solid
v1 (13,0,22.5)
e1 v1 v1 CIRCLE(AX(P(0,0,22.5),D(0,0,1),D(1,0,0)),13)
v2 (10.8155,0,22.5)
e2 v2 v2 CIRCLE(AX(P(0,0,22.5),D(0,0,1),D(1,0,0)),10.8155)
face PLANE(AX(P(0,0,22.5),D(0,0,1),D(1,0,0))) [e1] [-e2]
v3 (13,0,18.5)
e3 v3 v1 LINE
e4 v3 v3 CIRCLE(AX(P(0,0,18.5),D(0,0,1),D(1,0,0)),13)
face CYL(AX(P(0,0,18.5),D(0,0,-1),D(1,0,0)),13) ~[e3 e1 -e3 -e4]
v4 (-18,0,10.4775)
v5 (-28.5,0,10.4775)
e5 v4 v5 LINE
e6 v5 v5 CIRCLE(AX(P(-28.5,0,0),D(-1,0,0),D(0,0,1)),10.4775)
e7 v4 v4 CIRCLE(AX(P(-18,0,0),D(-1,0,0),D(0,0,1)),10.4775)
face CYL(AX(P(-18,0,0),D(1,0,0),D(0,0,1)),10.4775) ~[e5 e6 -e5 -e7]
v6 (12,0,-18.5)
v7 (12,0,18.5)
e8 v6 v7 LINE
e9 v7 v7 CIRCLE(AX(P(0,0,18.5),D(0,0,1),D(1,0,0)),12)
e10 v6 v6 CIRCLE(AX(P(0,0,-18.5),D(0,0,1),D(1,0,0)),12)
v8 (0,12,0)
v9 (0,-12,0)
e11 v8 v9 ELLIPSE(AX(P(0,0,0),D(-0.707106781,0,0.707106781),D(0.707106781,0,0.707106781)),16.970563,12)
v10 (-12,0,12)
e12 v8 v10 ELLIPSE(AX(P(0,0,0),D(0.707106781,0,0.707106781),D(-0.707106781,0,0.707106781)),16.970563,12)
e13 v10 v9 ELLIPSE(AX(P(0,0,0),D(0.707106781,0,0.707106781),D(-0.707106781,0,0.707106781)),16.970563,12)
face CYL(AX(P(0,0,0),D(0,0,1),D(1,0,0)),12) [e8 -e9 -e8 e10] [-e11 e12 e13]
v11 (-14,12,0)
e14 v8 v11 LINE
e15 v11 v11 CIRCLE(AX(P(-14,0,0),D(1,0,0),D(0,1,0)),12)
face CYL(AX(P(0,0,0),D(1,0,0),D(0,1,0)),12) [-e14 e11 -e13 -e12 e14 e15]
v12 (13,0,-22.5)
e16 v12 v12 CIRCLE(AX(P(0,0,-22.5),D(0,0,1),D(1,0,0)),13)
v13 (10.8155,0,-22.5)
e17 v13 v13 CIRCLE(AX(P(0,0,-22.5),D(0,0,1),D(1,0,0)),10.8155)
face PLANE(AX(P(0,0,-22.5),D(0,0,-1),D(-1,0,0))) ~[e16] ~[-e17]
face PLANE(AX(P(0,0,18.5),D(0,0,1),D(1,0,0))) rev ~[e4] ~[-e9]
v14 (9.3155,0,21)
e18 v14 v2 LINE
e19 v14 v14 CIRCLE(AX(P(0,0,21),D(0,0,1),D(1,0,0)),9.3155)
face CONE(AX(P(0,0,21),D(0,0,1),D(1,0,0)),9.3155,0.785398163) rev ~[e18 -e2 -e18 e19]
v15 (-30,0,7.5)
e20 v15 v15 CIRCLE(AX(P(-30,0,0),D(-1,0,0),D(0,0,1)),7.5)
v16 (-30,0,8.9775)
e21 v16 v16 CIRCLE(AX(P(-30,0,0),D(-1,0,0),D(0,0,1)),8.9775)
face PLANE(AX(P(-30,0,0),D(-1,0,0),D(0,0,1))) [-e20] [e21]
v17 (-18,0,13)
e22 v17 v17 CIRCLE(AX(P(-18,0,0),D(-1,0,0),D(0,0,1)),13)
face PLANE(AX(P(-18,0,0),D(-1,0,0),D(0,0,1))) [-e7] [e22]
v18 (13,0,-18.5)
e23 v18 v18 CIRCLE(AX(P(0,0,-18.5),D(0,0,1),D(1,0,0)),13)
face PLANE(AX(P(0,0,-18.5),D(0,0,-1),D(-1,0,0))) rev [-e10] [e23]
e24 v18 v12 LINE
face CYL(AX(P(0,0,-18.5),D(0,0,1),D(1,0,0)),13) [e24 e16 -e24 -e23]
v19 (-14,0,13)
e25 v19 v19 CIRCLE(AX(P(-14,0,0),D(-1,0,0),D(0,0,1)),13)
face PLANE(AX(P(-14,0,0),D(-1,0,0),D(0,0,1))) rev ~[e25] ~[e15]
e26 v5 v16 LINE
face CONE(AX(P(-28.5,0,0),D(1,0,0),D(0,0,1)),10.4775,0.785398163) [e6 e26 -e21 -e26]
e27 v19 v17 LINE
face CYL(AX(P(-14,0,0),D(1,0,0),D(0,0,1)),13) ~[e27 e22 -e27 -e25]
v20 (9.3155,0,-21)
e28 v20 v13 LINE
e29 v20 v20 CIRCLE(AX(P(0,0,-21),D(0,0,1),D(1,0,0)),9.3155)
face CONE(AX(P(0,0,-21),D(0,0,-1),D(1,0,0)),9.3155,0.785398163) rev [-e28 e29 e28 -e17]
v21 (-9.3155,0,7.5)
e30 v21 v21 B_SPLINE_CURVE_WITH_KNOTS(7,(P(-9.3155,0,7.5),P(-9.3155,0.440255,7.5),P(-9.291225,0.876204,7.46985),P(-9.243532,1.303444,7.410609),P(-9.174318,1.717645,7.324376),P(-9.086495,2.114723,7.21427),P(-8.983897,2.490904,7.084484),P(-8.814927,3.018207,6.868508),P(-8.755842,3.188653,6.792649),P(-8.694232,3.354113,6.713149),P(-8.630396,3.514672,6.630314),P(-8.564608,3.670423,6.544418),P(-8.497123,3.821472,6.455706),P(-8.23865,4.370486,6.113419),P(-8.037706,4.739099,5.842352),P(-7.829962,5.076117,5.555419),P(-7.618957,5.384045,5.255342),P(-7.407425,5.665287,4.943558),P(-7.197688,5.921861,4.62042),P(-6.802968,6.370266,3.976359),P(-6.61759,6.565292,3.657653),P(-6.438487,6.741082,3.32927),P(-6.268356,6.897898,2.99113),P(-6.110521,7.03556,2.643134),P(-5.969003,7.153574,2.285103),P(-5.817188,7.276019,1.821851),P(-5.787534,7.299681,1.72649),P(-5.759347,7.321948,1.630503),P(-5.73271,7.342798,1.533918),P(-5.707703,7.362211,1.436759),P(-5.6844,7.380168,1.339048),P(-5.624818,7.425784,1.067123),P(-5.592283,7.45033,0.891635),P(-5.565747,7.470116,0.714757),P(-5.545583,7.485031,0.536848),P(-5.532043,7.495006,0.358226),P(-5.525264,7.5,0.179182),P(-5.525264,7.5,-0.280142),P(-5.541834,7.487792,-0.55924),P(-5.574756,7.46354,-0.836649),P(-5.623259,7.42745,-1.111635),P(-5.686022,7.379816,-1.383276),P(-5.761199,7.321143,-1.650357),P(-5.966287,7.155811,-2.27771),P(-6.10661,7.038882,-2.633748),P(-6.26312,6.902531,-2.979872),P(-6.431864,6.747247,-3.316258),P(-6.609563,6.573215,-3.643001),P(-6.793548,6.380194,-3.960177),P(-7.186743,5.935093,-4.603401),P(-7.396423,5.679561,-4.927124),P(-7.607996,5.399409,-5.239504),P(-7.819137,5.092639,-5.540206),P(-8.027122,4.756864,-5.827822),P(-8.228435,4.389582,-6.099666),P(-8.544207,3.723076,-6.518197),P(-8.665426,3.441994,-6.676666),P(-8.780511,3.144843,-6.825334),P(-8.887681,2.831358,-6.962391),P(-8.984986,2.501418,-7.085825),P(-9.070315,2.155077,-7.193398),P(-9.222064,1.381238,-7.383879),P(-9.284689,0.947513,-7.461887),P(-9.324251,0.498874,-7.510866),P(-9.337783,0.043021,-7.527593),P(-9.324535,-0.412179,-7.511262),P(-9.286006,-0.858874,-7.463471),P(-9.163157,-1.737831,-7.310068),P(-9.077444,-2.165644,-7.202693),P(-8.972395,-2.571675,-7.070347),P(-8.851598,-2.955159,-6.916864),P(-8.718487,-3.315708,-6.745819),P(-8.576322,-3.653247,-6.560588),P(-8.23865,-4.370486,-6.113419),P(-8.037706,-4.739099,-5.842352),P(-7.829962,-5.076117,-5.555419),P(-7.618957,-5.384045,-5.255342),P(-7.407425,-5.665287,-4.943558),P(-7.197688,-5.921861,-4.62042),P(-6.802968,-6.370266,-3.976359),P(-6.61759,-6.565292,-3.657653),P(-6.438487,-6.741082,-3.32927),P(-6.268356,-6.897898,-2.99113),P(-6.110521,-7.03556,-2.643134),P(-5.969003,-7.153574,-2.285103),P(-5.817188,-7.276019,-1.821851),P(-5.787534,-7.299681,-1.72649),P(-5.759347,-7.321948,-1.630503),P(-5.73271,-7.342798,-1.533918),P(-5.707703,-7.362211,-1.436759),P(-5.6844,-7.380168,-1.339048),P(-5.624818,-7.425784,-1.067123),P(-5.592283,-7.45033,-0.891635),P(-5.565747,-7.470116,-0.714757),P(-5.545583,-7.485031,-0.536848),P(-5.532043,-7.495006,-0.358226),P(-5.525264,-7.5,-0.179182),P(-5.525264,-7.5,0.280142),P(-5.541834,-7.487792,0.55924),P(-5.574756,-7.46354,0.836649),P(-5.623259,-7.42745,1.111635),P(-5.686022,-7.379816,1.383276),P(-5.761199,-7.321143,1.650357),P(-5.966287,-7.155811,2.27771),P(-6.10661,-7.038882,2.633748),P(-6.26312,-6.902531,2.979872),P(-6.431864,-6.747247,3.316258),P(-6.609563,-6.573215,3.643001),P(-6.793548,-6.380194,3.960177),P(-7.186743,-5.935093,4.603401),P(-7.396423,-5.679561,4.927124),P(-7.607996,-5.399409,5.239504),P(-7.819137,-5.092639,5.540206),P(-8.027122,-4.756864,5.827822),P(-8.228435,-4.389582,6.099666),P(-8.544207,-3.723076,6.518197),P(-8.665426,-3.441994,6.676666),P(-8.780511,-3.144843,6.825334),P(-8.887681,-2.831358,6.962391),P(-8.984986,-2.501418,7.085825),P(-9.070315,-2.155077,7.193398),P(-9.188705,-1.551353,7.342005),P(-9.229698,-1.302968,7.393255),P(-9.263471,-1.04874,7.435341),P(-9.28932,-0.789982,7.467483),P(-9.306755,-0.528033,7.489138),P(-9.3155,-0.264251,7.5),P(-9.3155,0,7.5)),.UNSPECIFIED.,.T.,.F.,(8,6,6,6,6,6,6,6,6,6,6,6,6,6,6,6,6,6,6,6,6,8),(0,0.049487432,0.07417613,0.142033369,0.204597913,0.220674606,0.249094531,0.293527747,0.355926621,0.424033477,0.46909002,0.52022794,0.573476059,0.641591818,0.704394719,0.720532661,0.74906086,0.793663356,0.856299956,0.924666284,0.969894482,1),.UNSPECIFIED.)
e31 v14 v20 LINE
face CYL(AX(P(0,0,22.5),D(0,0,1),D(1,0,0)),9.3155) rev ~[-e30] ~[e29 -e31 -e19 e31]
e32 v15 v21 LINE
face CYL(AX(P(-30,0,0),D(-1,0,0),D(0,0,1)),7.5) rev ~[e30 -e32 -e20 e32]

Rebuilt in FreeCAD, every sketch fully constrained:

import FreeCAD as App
import Part
import Sketcher
from FreeCAD import Vector
Q = App.Units.Quantity


def edges_at(feature, points):
    """Names of the edges that pass closest to the given points."""
    edges = feature.Shape.Edges
    near = lambda p: min(range(len(edges)), key=lambda i: edges[i].distToShape(Part.Vertex(*p))[0])
    return sorted({f"Edge{near(p) + 1}" for p in points})

doc = App.newDocument("Part")
body = doc.addObject("PartDesign::Body", "Body")

sketch1 = doc.addObject("Sketcher::SketchObject", "Sketch")
body.addObject(sketch1)
sketch1.AttachmentSupport = (doc.XY_Plane, [""])
sketch1.MapMode = "FlatFace"
sketch1.addGeometry(Part.Circle(Vector(0, 0, 0), Vector(0, 0, 1), 12), False)
sketch1.addConstraint([
    Sketcher.Constraint("Coincident", 0, 3, -1, 1),
    Sketcher.Constraint("Diameter", 0, Q("24 mm")),
])
pad1 = doc.addObject("PartDesign::Pad", "Pad")
body.addObject(pad1)
pad1.Profile = sketch1
pad1.Length = 37
pad1.Midplane = True

sketch2 = doc.addObject("Sketcher::SketchObject", "Sketch001")
body.addObject(sketch2)
sketch2.AttachmentSupport = (doc.XY_Plane, [""])
sketch2.MapMode = "FlatFace"
sketch2.AttachmentOffset = App.Placement(Vector(0, 0, 18.5), App.Rotation())
sketch2.addGeometry(Part.Circle(Vector(0, 0, 0), Vector(0, 0, 1), 13), False)
sketch2.addConstraint([
    Sketcher.Constraint("Coincident", 0, 3, -1, 1),
    Sketcher.Constraint("Diameter", 0, Q("26 mm")),
])
pad2 = doc.addObject("PartDesign::Pad", "Pad001")
body.addObject(pad2)
pad2.Profile = sketch2
pad2.Length = 4
doc.recompute()

mirrored = doc.addObject("PartDesign::Mirrored", "Mirrored")
body.addObject(mirrored)
mirrored.Originals = [pad2]
mirrored.MirrorPlane = (doc.XY_Plane, [""])
body.Tip = mirrored

sketch3 = doc.addObject("Sketcher::SketchObject", "Sketch002")
body.addObject(sketch3)
sketch3.AttachmentSupport = (doc.YZ_Plane, [""])
sketch3.MapMode = "FlatFace"
sketch3.addGeometry(Part.Circle(Vector(0, 0, 0), Vector(0, 0, 1), 12), False)
sketch3.addConstraint([
    Sketcher.Constraint("Coincident", 0, 3, -1, 1),
    Sketcher.Constraint("Diameter", 0, Q("24 mm")),
])
pad3 = doc.addObject("PartDesign::Pad", "Pad002")
body.addObject(pad3)
pad3.Profile = sketch3
pad3.Length = 14
pad3.Reversed = True

sketch4 = doc.addObject("Sketcher::SketchObject", "Sketch003")
body.addObject(sketch4)
sketch4.AttachmentSupport = (doc.YZ_Plane, [""])
sketch4.MapMode = "FlatFace"
sketch4.AttachmentOffset = App.Placement(Vector(0, 0, -14), App.Rotation())
sketch4.addGeometry(Part.Circle(Vector(0, 0, 0), Vector(0, 0, 1), 13), False)
sketch4.addConstraint([
    Sketcher.Constraint("Coincident", 0, 3, -1, 1),
    Sketcher.Constraint("Diameter", 0, Q("26 mm")),
])
pad4 = doc.addObject("PartDesign::Pad", "Pad003")
body.addObject(pad4)
pad4.Profile = sketch4
pad4.Length = 4
pad4.Reversed = True

sketch5 = doc.addObject("Sketcher::SketchObject", "Sketch004")
body.addObject(sketch5)
sketch5.AttachmentSupport = (doc.YZ_Plane, [""])
sketch5.MapMode = "FlatFace"
sketch5.AttachmentOffset = App.Placement(Vector(0, 0, -18), App.Rotation())
sketch5.addGeometry(Part.Circle(Vector(0, 0, 0), Vector(0, 0, 1), 10), False)
sketch5.addConstraint([
    Sketcher.Constraint("Coincident", 0, 3, -1, 1),
    Sketcher.Constraint("Diameter", 0, Q("20.955 mm")),
])
pad5 = doc.addObject("PartDesign::Pad", "Pad004")
body.addObject(pad5)
pad5.Profile = sketch5
pad5.Length = 12
pad5.Reversed = True

sketch6 = doc.addObject("Sketcher::SketchObject", "Sketch005")
body.addObject(sketch6)
sketch6.AttachmentSupport = (doc.XY_Plane, [""])
sketch6.MapMode = "FlatFace"
sketch6.AttachmentOffset = App.Placement(Vector(0, 0, 22.5), App.Rotation())
sketch6.addGeometry(Part.Circle(Vector(0, 0, 0), Vector(0, 0, 1), 9), False)
sketch6.addConstraint([
    Sketcher.Constraint("Coincident", 0, 3, -1, 1),
    Sketcher.Constraint("Diameter", 0, Q("18.631 mm")),
])
pocket1 = doc.addObject("PartDesign::Pocket", "Pocket")
body.addObject(pocket1)
pocket1.Profile = sketch6
pocket1.Type = "ThroughAll"

sketch7 = doc.addObject("Sketcher::SketchObject", "Sketch006")
body.addObject(sketch7)
sketch7.AttachmentSupport = (doc.YZ_Plane, [""])
sketch7.MapMode = "FlatFace"
sketch7.AttachmentOffset = App.Placement(Vector(0, 0, -30), App.Rotation())
sketch7.addGeometry(Part.Circle(Vector(0, 0, 0), Vector(0, 0, 1), 8), False)
sketch7.addConstraint([
    Sketcher.Constraint("Coincident", 0, 3, -1, 1),
    Sketcher.Constraint("Diameter", 0, Q("15 mm")),
])
pocket2 = doc.addObject("PartDesign::Pocket", "Pocket001")
body.addObject(pocket2)
pocket2.Profile = sketch7
pocket2.Type = "UpToFirst"
pocket2.Reversed = True
doc.recompute()

chamfer = doc.addObject("PartDesign::Chamfer", "Chamfer")
body.addObject(chamfer)
chamfer.Base = (pocket2, edges_at(pocket2, [(-30, 0, -10.477)]))
chamfer.Size = 1.5
doc.recompute()

chamfer2 = doc.addObject("PartDesign::Chamfer", "Chamfer001")
body.addObject(chamfer2)
chamfer2.Base = (chamfer, edges_at(chamfer, [(-9.316, 0, -22.5)]))
chamfer2.Size = 1.5
doc.recompute()

chamfer3 = doc.addObject("PartDesign::Chamfer", "Chamfer002")
body.addObject(chamfer3)
chamfer3.Base = (chamfer2, edges_at(chamfer2, [(-9.316, 0, 22.5)]))
chamfer3.Size = 1.5

doc.recompute()
